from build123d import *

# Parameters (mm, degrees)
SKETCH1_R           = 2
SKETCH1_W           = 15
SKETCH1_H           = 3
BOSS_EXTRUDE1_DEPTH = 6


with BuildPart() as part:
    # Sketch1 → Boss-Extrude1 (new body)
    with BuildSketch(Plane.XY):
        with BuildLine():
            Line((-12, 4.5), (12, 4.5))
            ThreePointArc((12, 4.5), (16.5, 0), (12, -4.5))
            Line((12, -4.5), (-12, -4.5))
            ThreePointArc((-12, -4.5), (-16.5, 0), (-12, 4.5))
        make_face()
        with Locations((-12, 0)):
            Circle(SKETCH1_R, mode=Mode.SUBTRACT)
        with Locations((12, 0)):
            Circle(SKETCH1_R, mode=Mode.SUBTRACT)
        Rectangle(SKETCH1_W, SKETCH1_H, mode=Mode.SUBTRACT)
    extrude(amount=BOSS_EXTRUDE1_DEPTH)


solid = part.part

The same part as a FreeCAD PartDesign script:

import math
import FreeCAD as App
import Part
import Sketcher
Q = App.Units.Quantity


def add_polygon(sketch, points):
    """Adds a closed chain of lines whose ends are joined by coincident constraints."""
    first, n = sketch.GeometryCount, len(points)
    for a, b in zip(points, points[1:] + points[:1]):
        sketch.addGeometry(Part.LineSegment(App.Vector(*a, 0), App.Vector(*b, 0)), False)
    for i in range(n):
        sketch.addConstraint(Sketcher.Constraint("Coincident", first + i, 2, first + (i + 1) % n, 1))

doc = App.newDocument("Part")
body = doc.addObject("PartDesign::Body", "Body")

sketch1 = body.newObject("Sketcher::SketchObject", "Sketch")
sketch1.AttachmentSupport = (doc.getObject("XY_Plane"), [""])
sketch1.MapMode = "FlatFace"
sketch1.addGeometry(Part.LineSegment(App.Vector(12, 4.5, 0), App.Vector(-12, 4.5, 0)), False)
sketch1.addGeometry(Part.ArcOfCircle(Part.Circle(App.Vector(-12, 0, 0), App.Vector(0, 0, 1), 4.5), math.radians(90), math.radians(270)), False)
sketch1.addGeometry(Part.LineSegment(App.Vector(-12, -4.5, 0), App.Vector(12, -4.5, 0)), False)
sketch1.addGeometry(Part.ArcOfCircle(Part.Circle(App.Vector(12, 0, 0), App.Vector(0, 0, 1), 4.5), math.radians(-90), math.radians(90)), False)
sketch1.addGeometry(Part.Circle(App.Vector(12, 0, 0), App.Vector(0, 0, 1), 2), False)
add_polygon(sketch1, [(-7.5, -1.5), (-7.5, 1.5), (7.5, 1.5), (7.5, -1.5)])
sketch1.addGeometry(Part.Circle(App.Vector(-12, 0, 0), App.Vector(0, 0, 1), 2), False)
sketch1.addConstraint(Sketcher.Constraint("Tangent", 0, 2, 1, 1))
sketch1.addConstraint(Sketcher.Constraint("Tangent", 1, 2, 2, 1))
sketch1.addConstraint(Sketcher.Constraint("Tangent", 2, 2, 3, 1))
sketch1.addConstraint(Sketcher.Constraint("Tangent", 3, 2, 0, 1))
sketch1.addConstraint(Sketcher.Constraint("Horizontal", 0))
sketch1.addConstraint(Sketcher.Constraint("Horizontal", 2))
sketch1.addConstraint(Sketcher.Constraint("Vertical", 5))
sketch1.addConstraint(Sketcher.Constraint("Horizontal", 6))
sketch1.addConstraint(Sketcher.Constraint("Vertical", 7))
sketch1.addConstraint(Sketcher.Constraint("Horizontal", 8))
sketch1.addConstraint(Sketcher.Constraint("Coincident", 4, 3, 3, 3))
sketch1.addConstraint(Sketcher.Constraint("Coincident", 9, 3, 1, 3))
sketch1.addConstraint(Sketcher.Constraint("Equal", 4, 9))
sketch1.addConstraint(Sketcher.Constraint("Symmetric", 1, 3, 3, 3, -1, 1))
sketch1.addConstraint(Sketcher.Constraint("Symmetric", 5, 2, 7, 2, -1, 1))
sketch1.addConstraint(Sketcher.Constraint("Diameter", 4, Q("4 mm")))
sketch1.addConstraint(Sketcher.Constraint("Radius", 1, Q("4.5 mm")))
sketch1.addConstraint(Sketcher.Constraint("DistanceX", 0, 2, 0, 1, Q("24 mm")))
sketch1.addConstraint(Sketcher.Constraint("DistanceX", 6, 1, 6, 2, Q("15 mm")))
sketch1.addConstraint(Sketcher.Constraint("DistanceY", 5, 1, 5, 2, Q("3 mm")))
pad1 = body.newObject("PartDesign::Pad", "Pad")
pad1.Profile = sketch1
pad1.Length = 6

doc.recompute()
